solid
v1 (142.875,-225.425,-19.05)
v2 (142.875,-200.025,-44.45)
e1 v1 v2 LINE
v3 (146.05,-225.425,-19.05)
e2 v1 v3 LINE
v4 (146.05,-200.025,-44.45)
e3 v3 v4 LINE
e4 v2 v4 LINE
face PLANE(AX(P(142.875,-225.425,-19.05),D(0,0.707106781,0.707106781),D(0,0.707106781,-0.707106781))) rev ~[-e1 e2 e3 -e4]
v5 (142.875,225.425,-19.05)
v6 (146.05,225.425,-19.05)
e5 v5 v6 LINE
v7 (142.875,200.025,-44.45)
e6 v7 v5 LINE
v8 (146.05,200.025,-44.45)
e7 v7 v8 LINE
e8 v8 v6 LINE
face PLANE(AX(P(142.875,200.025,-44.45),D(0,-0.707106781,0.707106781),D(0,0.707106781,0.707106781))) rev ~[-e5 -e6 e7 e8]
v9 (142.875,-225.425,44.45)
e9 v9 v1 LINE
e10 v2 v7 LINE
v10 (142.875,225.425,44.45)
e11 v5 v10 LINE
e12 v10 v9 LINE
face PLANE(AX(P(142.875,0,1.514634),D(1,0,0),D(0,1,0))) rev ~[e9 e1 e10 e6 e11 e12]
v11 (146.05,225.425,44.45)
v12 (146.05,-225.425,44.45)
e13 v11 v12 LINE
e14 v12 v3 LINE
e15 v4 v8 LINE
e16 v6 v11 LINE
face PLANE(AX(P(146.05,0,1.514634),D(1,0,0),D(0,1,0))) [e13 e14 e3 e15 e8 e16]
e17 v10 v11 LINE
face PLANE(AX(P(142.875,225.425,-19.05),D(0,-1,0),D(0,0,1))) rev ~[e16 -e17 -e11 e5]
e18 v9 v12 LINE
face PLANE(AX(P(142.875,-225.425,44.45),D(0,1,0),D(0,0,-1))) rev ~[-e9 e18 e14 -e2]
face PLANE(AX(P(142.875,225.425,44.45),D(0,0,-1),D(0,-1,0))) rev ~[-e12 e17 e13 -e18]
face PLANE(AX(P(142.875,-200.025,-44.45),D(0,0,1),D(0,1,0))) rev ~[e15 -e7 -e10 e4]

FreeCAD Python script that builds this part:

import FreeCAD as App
import Part
import Sketcher

V = App.Vector
Q = App.Units.Quantity

doc = App.newDocument("Part")
body = doc.addObject("PartDesign::Body", "Body")

# Sketch on YZ plane
sketch1 = body.newObject("Sketcher::SketchObject", "Sketch")
sketch1.AttachmentSupport = (doc.getObject("YZ_Plane"), [""])
sketch1.MapMode = "FlatFace"
sketch1.AttachmentOffset = App.Placement(V(0, 0, 5.625 * 25.4), App.Rotation())
sketch1.addGeometry([
    Part.LineSegment(V(225, -19, 0), V(225, 44, 0)),  # 0
    Part.LineSegment(V(225, 44, 0), V(-225, 44, 0)),  # 1
    Part.LineSegment(V(-225, 44, 0), V(-225, -19, 0)),  # 2
    Part.LineSegment(V(-225, -19, 0), V(-200, -44, 0)),  # 3
    Part.LineSegment(V(-200, -44, 0), V(200, -44, 0)),  # 4
    Part.LineSegment(V(200, -44, 0), V(225, -19, 0)),  # 5
], False)
sketch1.addConstraint([
    Sketcher.Constraint("Coincident", 0, 2, 1, 1),
    Sketcher.Constraint("Coincident", 1, 2, 2, 1),
    Sketcher.Constraint("Coincident", 2, 2, 3, 1),
    Sketcher.Constraint("Coincident", 3, 2, 4, 1),
    Sketcher.Constraint("Coincident", 4, 2, 5, 1),
    Sketcher.Constraint("Coincident", 5, 2, 0, 1),
    Sketcher.Constraint("Vertical", 0),
    Sketcher.Constraint("Horizontal", 1),
    Sketcher.Constraint("Vertical", 2),
    Sketcher.Constraint("Horizontal", 4),
    Sketcher.Constraint("Symmetric", 2, 2, 5, 2, -2),
    Sketcher.Constraint("Perpendicular", 3, 5),
    Sketcher.Constraint("Equal", 3, 5),
    Sketcher.Constraint("DistanceY", 0, 1, 0, 2, Q("2.5 in")),
    Sketcher.Constraint("DistanceX", 2, 2, 3, 2, Q("1 in")),
    Sketcher.Constraint("DistanceX", 1, 2, 1, 1, Q("17.75 in")),
    Sketcher.Constraint("DistanceY", -1, 1, 0, 2, Q("1.75 in")),
])
pad1 = body.newObject("PartDesign::Pad", "Pad")
pad1.Profile = sketch1
pad1.Length = Q("0.125 in")

doc.recompute()
